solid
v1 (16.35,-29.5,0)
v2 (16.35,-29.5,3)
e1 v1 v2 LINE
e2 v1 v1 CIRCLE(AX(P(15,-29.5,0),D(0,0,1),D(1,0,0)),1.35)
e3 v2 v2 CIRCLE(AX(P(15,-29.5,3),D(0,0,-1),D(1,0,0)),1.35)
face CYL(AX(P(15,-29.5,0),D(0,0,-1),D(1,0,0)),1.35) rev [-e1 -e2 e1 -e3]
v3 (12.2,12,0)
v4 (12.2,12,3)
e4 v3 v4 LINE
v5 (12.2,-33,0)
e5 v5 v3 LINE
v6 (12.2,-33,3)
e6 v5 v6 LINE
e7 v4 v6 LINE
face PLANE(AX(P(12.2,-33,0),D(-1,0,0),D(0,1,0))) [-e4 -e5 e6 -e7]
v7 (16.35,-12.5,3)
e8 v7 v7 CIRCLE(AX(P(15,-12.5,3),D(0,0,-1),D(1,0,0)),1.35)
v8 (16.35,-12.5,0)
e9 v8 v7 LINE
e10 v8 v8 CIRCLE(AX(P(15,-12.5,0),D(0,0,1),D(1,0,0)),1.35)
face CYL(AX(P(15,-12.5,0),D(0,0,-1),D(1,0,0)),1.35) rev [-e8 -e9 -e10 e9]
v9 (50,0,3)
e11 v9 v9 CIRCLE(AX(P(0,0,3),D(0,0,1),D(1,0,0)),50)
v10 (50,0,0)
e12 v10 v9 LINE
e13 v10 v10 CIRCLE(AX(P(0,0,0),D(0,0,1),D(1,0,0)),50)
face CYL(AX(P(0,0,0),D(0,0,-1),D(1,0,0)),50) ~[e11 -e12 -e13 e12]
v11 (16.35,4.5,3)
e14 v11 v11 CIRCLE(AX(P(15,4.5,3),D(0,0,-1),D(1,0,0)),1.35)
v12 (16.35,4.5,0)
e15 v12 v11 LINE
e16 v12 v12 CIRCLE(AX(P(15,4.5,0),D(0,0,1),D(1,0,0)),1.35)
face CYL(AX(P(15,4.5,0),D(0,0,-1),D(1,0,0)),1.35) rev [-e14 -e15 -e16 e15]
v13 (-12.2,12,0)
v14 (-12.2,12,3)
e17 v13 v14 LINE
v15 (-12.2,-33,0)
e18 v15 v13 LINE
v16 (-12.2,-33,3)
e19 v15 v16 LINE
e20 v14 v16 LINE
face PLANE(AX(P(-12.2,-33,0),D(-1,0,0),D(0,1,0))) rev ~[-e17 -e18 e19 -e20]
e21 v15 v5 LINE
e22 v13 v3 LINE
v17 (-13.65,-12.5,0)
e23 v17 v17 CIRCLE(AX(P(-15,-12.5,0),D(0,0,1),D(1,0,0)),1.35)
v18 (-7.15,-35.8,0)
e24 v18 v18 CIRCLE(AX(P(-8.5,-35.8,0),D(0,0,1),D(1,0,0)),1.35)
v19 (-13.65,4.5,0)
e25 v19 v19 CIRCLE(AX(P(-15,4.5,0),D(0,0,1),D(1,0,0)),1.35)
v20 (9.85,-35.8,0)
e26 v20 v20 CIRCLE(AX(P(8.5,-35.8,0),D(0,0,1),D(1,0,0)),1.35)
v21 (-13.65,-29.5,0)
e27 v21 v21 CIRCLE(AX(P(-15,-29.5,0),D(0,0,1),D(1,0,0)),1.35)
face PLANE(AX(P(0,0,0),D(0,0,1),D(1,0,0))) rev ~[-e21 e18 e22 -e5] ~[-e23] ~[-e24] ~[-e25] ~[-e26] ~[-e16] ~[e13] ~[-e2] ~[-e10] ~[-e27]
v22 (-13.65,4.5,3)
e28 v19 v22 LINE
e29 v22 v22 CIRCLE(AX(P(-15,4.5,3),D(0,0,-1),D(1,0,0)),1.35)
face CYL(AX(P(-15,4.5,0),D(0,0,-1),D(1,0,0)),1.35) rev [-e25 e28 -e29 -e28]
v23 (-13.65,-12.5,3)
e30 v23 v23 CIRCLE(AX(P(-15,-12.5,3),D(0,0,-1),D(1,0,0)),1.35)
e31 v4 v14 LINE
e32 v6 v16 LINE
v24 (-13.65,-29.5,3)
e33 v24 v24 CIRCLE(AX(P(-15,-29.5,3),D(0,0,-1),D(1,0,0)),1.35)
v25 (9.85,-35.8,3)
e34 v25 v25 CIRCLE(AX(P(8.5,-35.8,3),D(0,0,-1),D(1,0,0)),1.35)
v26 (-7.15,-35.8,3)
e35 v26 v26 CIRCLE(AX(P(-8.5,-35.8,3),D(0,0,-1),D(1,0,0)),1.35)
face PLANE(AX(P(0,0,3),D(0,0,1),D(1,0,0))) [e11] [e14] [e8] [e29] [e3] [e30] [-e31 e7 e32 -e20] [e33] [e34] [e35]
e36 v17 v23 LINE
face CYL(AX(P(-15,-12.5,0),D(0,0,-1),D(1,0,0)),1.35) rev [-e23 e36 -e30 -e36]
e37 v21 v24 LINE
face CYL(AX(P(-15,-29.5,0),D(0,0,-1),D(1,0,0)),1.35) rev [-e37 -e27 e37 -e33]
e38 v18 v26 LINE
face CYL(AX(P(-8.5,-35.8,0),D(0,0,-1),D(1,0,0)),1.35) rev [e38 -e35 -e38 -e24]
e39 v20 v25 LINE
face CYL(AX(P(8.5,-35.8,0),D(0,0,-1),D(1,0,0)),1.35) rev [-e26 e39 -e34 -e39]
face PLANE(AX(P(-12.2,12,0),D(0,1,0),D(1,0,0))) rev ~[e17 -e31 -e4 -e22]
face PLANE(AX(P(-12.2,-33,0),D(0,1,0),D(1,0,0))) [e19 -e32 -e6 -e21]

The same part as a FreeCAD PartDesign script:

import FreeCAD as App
import Part
import Sketcher

V = App.Vector


def add_polygon(sketch, points):
    """Adds a closed chain of lines whose ends are joined by coincident constraints."""
    first, n = sketch.GeometryCount, len(points)
    for a, b in zip(points, points[1:] + points[:1]):
        sketch.addGeometry(Part.LineSegment(App.Vector(*a, 0), App.Vector(*b, 0)), False)
    for i in range(n):
        sketch.addConstraint(Sketcher.Constraint("Coincident", first + i, 2, first + (i + 1) % n, 1))

doc = App.newDocument("Part")
params = doc.addObject("Spreadsheet::Sheet", "Params")
for row, (alias, value) in enumerate([
    ("sketch1_diameter", "100 mm"),
    ("pad1_length", "3 mm"),
    ("sketch2_diameter", "2.7 mm"),
    ("sketch2_height", "45 mm"),
    ("sketch2_width", "24.4 mm"),
    ("pocket1_length", "25 mm"),
], start=1):
    params.set(f"A{row}", alias)
    params.set(f"B{row}", "=" + value)
    params.setAlias(f"B{row}", alias)

body = doc.addObject("PartDesign::Body", "Body")

sketch1 = body.newObject("Sketcher::SketchObject", "Sketch")
sketch1.AttachmentSupport = (doc.getObject("XY_Plane"), [""])
sketch1.MapMode = "FlatFace"
sketch1.addGeometry(Part.Circle(V(0, 0, 0), V(0, 0, 1), 50), False)
sketch1.addConstraint(Sketcher.Constraint("Coincident", 0, 3, -1, 1))
sketch1.addConstraint(Sketcher.Constraint("Diameter", 0, 100.0))
sketch1.setExpression("Constraints[1]", "Params.sketch1_diameter")
pad1 = body.newObject("PartDesign::Pad", "Pad")
pad1.Profile = sketch1
pad1.setExpression("Length", "Params.pad1_length")

sketch2 = body.newObject("Sketcher::SketchObject", "Sketch001")
sketch2.AttachmentSupport = (doc.getObject("XY_Plane"), [""])
sketch2.MapMode = "FlatFace"
add_polygon(sketch2, [(-12.2, 12), (-12.2, -33), (12.2, -33), (12.2, 12)])
sketch2.addGeometry(Part.Circle(V(-15, 4.5, 0), V(0, 0, 1), 1.4), False)
sketch2.addGeometry(Part.Circle(V(-15, -12.5, 0), V(0, 0, 1), 1.4), False)
sketch2.addGeometry(Part.Circle(V(-15, -29.5, 0), V(0, 0, 1), 1.4), False)
sketch2.addGeometry(Part.Circle(V(15, 4.5, 0), V(0, 0, 1), 1.4), False)
sketch2.addGeometry(Part.Circle(V(15, -12.5, 0), V(0, 0, 1), 1.4), False)
sketch2.addGeometry(Part.Circle(V(15, -29.5, 0), V(0, 0, 1), 1.4), False)
sketch2.addGeometry(Part.Circle(V(-8.5, -35.8, 0), V(0, 0, 1), 1.4), False)
sketch2.addGeometry(Part.Circle(V(8.5, -35.8, 0), V(0, 0, 1), 1.4), False)
sketch2.addConstraint(Sketcher.Constraint("Vertical", 0))
sketch2.addConstraint(Sketcher.Constraint("Horizontal", 1))
sketch2.addConstraint(Sketcher.Constraint("Vertical", 2))
sketch2.addConstraint(Sketcher.Constraint("Horizontal", 3))
sketch2.addConstraint(Sketcher.Constraint("Equal", 4, 5))
sketch2.addConstraint(Sketcher.Constraint("Equal", 5, 6))
sketch2.addConstraint(Sketcher.Constraint("Equal", 6, 7))
sketch2.addConstraint(Sketcher.Constraint("Equal", 7, 8))
sketch2.addConstraint(Sketcher.Constraint("Equal", 8, 9))
sketch2.addConstraint(Sketcher.Constraint("Equal", 9, 10))
sketch2.addConstraint(Sketcher.Constraint("Equal", 10, 11))
sketch2.addConstraint(Sketcher.Constraint("Symmetric", 4, 3, 7, 3, -2))
sketch2.addConstraint(Sketcher.Constraint("Symmetric", 5, 3, 8, 3, -2))
sketch2.addConstraint(Sketcher.Constraint("Symmetric", 6, 3, 9, 3, -2))
sketch2.addConstraint(Sketcher.Constraint("Symmetric", 10, 3, 11, 3, -2))
sketch2.addConstraint(Sketcher.Constraint("Vertical", 4, 3, 5, 3))
sketch2.addConstraint(Sketcher.Constraint("Vertical", 5, 3, 6, 3))
sketch2.addConstraint(Sketcher.Constraint("Diameter", 4, 2.7))
sketch2.addConstraint(Sketcher.Constraint("DistanceY", 0, 2, 0, 1, 45.0))
sketch2.addConstraint(Sketcher.Constraint("DistanceX", 1, 1, 1, 2, 24.4))
sketch2.addConstraint(Sketcher.Constraint("DistanceX", 4, 3, -1, 1, 15.0))
sketch2.addConstraint(Sketcher.Constraint("DistanceY", 0, 2, -1, 1, 33.0))
sketch2.addConstraint(Sketcher.Constraint("DistanceY", 5, 3, 4, 3, 17.0))
sketch2.addConstraint(Sketcher.Constraint("DistanceY", 6, 3, 5, 3, 17.0))
sketch2.addConstraint(Sketcher.Constraint("DistanceX", 10, 3, 11, 3, 17.0))
sketch2.addConstraint(Sketcher.Constraint("DistanceY", -1, 1, 4, 3, 4.5))
sketch2.addConstraint(Sketcher.Constraint("DistanceY", 10, 3, -1, 1, 35.8))
sketch2.addConstraint(Sketcher.Constraint("DistanceX", 0, 2, -1, 1, 12.2))
sketch2.setExpression("Constraints[21]", "Params.sketch2_diameter")
sketch2.setExpression("Constraints[22]", "Params.sketch2_height")
sketch2.setExpression("Constraints[23]", "Params.sketch2_width")
pocket1 = body.newObject("PartDesign::Pocket", "Pocket")
pocket1.Profile = sketch2
pocket1.setExpression("Length", "Params.pocket1_length")
pocket1.Reversed = True

doc.recompute()
